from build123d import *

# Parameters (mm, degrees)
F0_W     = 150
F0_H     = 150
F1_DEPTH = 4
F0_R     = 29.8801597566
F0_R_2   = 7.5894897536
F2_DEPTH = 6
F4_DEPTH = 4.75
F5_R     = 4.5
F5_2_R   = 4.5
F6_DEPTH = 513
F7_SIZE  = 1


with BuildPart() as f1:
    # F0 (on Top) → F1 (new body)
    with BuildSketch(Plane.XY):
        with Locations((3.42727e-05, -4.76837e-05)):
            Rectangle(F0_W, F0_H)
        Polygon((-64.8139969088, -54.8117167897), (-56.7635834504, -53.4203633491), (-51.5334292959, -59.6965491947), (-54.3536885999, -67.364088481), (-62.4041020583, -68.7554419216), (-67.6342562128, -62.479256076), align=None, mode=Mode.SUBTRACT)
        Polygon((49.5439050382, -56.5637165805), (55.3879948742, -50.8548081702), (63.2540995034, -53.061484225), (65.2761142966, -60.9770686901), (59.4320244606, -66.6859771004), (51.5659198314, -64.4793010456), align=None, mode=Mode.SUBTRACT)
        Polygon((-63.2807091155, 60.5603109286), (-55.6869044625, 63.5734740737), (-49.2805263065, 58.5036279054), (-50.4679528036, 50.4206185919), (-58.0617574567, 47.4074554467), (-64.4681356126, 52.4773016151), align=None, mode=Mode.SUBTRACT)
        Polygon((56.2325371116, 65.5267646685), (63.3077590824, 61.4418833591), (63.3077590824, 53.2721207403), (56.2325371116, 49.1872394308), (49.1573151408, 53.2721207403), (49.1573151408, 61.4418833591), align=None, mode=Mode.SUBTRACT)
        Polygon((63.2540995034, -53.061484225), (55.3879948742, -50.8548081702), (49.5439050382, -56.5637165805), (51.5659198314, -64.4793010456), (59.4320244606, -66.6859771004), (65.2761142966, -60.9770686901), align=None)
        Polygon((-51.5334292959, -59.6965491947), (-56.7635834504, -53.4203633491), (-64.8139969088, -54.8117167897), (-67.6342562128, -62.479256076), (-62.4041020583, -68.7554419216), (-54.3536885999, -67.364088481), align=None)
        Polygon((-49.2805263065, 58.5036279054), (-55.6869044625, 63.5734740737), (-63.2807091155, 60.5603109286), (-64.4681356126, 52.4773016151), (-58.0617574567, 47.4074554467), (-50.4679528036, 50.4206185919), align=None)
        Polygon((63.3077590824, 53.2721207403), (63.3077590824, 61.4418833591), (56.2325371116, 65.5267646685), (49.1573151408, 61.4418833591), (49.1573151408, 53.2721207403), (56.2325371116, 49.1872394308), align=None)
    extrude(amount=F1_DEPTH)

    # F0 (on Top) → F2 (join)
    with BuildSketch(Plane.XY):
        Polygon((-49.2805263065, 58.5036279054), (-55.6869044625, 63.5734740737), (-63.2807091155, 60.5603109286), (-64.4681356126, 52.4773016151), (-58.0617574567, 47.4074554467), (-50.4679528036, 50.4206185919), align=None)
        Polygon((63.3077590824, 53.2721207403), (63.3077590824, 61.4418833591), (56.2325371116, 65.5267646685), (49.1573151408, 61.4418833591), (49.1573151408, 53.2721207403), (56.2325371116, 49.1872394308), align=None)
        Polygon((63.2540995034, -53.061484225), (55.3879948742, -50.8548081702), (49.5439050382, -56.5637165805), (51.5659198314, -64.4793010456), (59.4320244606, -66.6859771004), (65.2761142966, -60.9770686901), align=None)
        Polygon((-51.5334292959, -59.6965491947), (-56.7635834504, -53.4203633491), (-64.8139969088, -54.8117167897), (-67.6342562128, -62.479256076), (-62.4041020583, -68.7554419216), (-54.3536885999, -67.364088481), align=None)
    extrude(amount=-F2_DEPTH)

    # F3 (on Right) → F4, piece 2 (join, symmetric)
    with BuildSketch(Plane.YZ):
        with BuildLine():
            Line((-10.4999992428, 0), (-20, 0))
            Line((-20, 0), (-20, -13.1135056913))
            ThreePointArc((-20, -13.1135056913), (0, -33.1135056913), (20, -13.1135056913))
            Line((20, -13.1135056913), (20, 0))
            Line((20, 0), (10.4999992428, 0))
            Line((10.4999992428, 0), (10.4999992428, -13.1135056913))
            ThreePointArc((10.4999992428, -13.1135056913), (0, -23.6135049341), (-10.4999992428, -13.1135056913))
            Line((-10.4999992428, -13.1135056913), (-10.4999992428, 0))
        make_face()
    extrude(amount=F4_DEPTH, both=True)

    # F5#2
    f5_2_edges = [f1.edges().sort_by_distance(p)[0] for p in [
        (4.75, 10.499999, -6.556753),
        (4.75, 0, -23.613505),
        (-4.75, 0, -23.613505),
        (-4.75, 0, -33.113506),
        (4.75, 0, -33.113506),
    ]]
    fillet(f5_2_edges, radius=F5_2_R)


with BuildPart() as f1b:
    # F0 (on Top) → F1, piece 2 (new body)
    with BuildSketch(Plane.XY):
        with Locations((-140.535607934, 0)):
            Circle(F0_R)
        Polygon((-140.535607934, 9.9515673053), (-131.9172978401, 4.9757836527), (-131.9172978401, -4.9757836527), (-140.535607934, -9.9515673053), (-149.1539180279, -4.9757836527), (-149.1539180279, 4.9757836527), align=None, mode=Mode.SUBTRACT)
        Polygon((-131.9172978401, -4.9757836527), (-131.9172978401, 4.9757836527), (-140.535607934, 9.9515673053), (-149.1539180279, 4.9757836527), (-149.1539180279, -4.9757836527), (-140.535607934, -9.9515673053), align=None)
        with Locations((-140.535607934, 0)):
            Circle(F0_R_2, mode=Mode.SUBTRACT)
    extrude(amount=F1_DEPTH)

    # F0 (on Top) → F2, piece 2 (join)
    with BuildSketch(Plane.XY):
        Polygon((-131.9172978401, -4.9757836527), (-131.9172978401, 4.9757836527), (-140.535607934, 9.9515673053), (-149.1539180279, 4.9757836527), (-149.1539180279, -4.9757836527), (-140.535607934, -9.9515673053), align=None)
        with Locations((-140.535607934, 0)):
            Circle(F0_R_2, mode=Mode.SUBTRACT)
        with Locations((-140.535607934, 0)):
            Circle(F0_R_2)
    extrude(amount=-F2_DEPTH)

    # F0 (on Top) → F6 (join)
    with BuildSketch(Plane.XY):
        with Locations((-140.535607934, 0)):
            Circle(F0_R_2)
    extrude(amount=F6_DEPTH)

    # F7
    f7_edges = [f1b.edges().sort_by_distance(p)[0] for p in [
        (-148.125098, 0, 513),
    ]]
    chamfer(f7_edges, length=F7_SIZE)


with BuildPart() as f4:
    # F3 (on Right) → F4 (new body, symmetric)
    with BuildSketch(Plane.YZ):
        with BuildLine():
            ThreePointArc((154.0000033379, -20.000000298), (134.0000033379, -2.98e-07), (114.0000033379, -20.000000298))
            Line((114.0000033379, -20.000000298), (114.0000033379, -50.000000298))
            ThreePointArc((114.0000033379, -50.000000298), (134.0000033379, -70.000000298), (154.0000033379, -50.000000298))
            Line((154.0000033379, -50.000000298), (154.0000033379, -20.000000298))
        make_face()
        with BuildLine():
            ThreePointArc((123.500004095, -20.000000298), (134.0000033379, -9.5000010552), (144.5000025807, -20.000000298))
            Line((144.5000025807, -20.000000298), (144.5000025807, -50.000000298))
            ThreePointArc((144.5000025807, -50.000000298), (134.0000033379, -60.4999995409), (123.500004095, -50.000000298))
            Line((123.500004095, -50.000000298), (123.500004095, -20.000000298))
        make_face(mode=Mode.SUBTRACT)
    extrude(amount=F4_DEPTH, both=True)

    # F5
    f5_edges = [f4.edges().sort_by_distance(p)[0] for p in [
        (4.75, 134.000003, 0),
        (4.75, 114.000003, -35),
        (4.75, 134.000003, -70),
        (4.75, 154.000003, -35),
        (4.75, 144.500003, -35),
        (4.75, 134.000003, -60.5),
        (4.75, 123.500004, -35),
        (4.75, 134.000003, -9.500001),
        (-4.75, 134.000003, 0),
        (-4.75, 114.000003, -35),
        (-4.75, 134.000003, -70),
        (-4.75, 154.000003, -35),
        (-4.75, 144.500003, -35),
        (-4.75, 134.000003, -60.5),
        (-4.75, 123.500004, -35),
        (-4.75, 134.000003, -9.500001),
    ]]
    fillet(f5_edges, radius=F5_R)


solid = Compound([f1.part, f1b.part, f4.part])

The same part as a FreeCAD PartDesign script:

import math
import FreeCAD as App
import Part
import Sketcher

V = App.Vector
Q = App.Units.Quantity


def edges_at(feature, points):
    """Names of the edges that pass closest to the given points."""
    edges = feature.Shape.Edges
    near = lambda p: min(range(len(edges)), key=lambda i: edges[i].distToShape(Part.Vertex(*p))[0])
    return sorted({f"Edge{near(p) + 1}" for p in points})

doc = App.newDocument("Part")
body = doc.addObject("PartDesign::Body", "Body")

sketch1 = body.newObject("Sketcher::SketchObject", "Sketch")
sketch1.AttachmentSupport = (doc.getObject("XY_Plane"), [""])
sketch1.MapMode = "FlatFace"
sketch1.addGeometry([
    Part.LineSegment(V(-74.999966, 74.999952, 0), V(-74.999966, -75.000048, 0)),
    Part.LineSegment(V(-74.999966, -75.000048, 0), V(75.000034, -75.000048, 0)),
    Part.LineSegment(V(75.000034, -75.000048, 0), V(75.000034, 74.999952, 0)),
    Part.LineSegment(V(75.000034, 74.999952, 0), V(-74.999966, 74.999952, 0)),
], False)
sketch1.addConstraint([
    Sketcher.Constraint("Coincident", 0, 2, 1, 1),
    Sketcher.Constraint("Coincident", 1, 2, 2, 1),
    Sketcher.Constraint("Coincident", 2, 2, 3, 1),
    Sketcher.Constraint("Coincident", 3, 2, 0, 1),
    Sketcher.Constraint("Vertical", 0),
    Sketcher.Constraint("Horizontal", 1),
    Sketcher.Constraint("Vertical", 2),
    Sketcher.Constraint("Horizontal", 3),
    Sketcher.Constraint("Equal", 3, 0),
    Sketcher.Constraint("DistanceX", 1, 1, 1, 2, 150.0),
    Sketcher.Constraint("DistanceX", 0, 2, -1, 1, 74.999966),
    Sketcher.Constraint("DistanceY", 0, 2, -1, 1, 75.000048),
])
pad1 = body.newObject("PartDesign::Pad", "Pad")
pad1.Profile = sketch1
pad1.Length = 4

sketch2 = body.newObject("Sketcher::SketchObject", "Sketch001")
sketch2.AttachmentSupport = (doc.getObject("XY_Plane"), [""])
sketch2.MapMode = "FlatFace"
sketch2.addGeometry([
    Part.LineSegment(V(-49, 59, 0), V(-56, 64, 0)),
    Part.LineSegment(V(-56, 64, 0), V(-63, 61, 0)),
    Part.LineSegment(V(-63, 61, 0), V(-64, 52, 0)),
    Part.LineSegment(V(-64, 52, 0), V(-58, 47, 0)),
    Part.LineSegment(V(-58, 47, 0), V(-50, 50, 0)),
    Part.LineSegment(V(-50, 50, 0), V(-49, 59, 0)),
    Part.LineSegment(V(63, 53, 0), V(63, 61, 0)),
    Part.LineSegment(V(63, 61, 0), V(56, 66, 0)),
    Part.LineSegment(V(56, 66, 0), V(49, 61, 0)),
    Part.LineSegment(V(49, 61, 0), V(49, 53, 0)),
    Part.LineSegment(V(49, 53, 0), V(56, 49, 0)),
    Part.LineSegment(V(56, 49, 0), V(63, 53, 0)),
    Part.LineSegment(V(63, -53, 0), V(55, -51, 0)),
    Part.LineSegment(V(55, -51, 0), V(50, -57, 0)),
    Part.LineSegment(V(50, -57, 0), V(52, -64, 0)),
    Part.LineSegment(V(52, -64, 0), V(59, -67, 0)),
    Part.LineSegment(V(59, -67, 0), V(65, -61, 0)),
    Part.LineSegment(V(65, -61, 0), V(63, -53, 0)),
    Part.LineSegment(V(-52, -60, 0), V(-57, -53, 0)),
    Part.LineSegment(V(-57, -53, 0), V(-65, -55, 0)),
    Part.LineSegment(V(-65, -55, 0), V(-68, -62, 0)),
    Part.LineSegment(V(-68, -62, 0), V(-62, -69, 0)),
    Part.LineSegment(V(-62, -69, 0), V(-54, -67, 0)),
    Part.LineSegment(V(-54, -67, 0), V(-52, -60, 0)),
], False)
sketch2.addConstraint([
    Sketcher.Constraint("Coincident", 0, 2, 1, 1),
    Sketcher.Constraint("Coincident", 1, 2, 2, 1),
    Sketcher.Constraint("Coincident", 2, 2, 3, 1),
    Sketcher.Constraint("Coincident", 3, 2, 4, 1),
    Sketcher.Constraint("Coincident", 4, 2, 5, 1),
    Sketcher.Constraint("Coincident", 5, 2, 0, 1),
    Sketcher.Constraint("Coincident", 6, 2, 7, 1),
    Sketcher.Constraint("Coincident", 7, 2, 8, 1),
    Sketcher.Constraint("Coincident", 8, 2, 9, 1),
    Sketcher.Constraint("Coincident", 9, 2, 10, 1),
    Sketcher.Constraint("Coincident", 10, 2, 11, 1),
    Sketcher.Constraint("Coincident", 11, 2, 6, 1),
    Sketcher.Constraint("Coincident", 12, 2, 13, 1),
    Sketcher.Constraint("Coincident", 13, 2, 14, 1),
    Sketcher.Constraint("Coincident", 14, 2, 15, 1),
    Sketcher.Constraint("Coincident", 15, 2, 16, 1),
    Sketcher.Constraint("Coincident", 16, 2, 17, 1),
    Sketcher.Constraint("Coincident", 17, 2, 12, 1),
    Sketcher.Constraint("Coincident", 18, 2, 19, 1),
    Sketcher.Constraint("Coincident", 19, 2, 20, 1),
    Sketcher.Constraint("Coincident", 20, 2, 21, 1),
    Sketcher.Constraint("Coincident", 21, 2, 22, 1),
    Sketcher.Constraint("Coincident", 22, 2, 23, 1),
    Sketcher.Constraint("Coincident", 23, 2, 18, 1),
    Sketcher.Constraint("Vertical", 6),
    Sketcher.Constraint("Vertical", 9),
    Sketcher.Constraint("Parallel", 0, 3),
    Sketcher.Constraint("Parallel", 1, 4),
    Sketcher.Constraint("Parallel", 2, 5),
    Sketcher.Constraint("Parallel", 7, 10),
    Sketcher.Constraint("Parallel", 8, 11),
    Sketcher.Constraint("Parallel", 12, 15),
    Sketcher.Constraint("Parallel", 13, 16),
    Sketcher.Constraint("Parallel", 14, 17),
    Sketcher.Constraint("Parallel", 18, 21),
    Sketcher.Constraint("Parallel", 19, 22),
    Sketcher.Constraint("Parallel", 20, 23),
    Sketcher.Constraint("Horizontal", 6, 2, 8, 2),
    Sketcher.Constraint("Horizontal", 9, 2, 11, 2),
    Sketcher.Constraint("Vertical", 7, 2, 10, 2),
    Sketcher.Constraint("Equal", 0, 1),
    Sketcher.Constraint("Equal", 1, 2),
    Sketcher.Constraint("Equal", 2, 3),
    Sketcher.Constraint("Equal", 5, 7),
    Sketcher.Constraint("Equal", 11, 12),
    Sketcher.Constraint("Equal", 12, 13),
    Sketcher.Constraint("Equal", 13, 14),
    Sketcher.Constraint("Equal", 14, 15),
    Sketcher.Constraint("Equal", 17, 18),
    Sketcher.Constraint("Equal", 18, 19),
    Sketcher.Constraint("Equal", 19, 20),
    Sketcher.Constraint("Equal", 20, 21),
    Sketcher.Constraint("Angle", 7, Q("150 deg")),
    Sketcher.Constraint("DistanceY", 13, 2, 19, 2, 1.752),
    Sketcher.Constraint("DistanceY", -1, 1, 2, 2, 52.477302),
    Sketcher.Constraint("DistanceY", 14, 2, -1, 1, 64.479301),
    Sketcher.Constraint("DistanceX", -1, 1, 17, 2, 63.2541),
    Sketcher.Constraint("DistanceY", 13, 2, 8, 2, 118.0056),
    Sketcher.Constraint("DistanceX", 19, 2, 13, 2, 114.357902),
    Sketcher.Constraint("DistanceX", 20, 2, 3, 2, 9.572499),
    Sketcher.Constraint("DistanceY", 6, 1, 6, 2, 8.169763),
    Sketcher.Constraint("DistanceX", 1, 2, -1, 1, 63.280709),
    Sketcher.Constraint("DistanceY", -1, 1, 1, 2, 60.560311),
    Sketcher.Constraint("DistanceY", -1, 1, 4, 2, 50.420619),
    Sketcher.Constraint("DistanceX", -1, 1, 6, 2, 63.307759),
    Sketcher.Constraint("DistanceY", -1, 1, 9, 2, 53.272121),
    Sketcher.Constraint("DistanceY", -1, 1, 10, 2, 49.187239),
    Sketcher.Constraint("DistanceY", 12, 2, -1, 1, 50.854808),
    Sketcher.Constraint("DistanceX", -1, 1, 14, 2, 51.56592),
    Sketcher.Constraint("DistanceY", 21, 2, -1, 1, 68.755442),
    Sketcher.Constraint("DistanceX", 22, 2, -1, 1, 54.353689),
    Sketcher.Constraint("DistanceY", 22, 2, -1, 1, 67.364088),
])
pad2 = body.newObject("PartDesign::Pad", "Pad001")
pad2.Profile = sketch2
pad2.Length = 6
pad2.Reversed = True

sketch3 = body.newObject("Sketcher::SketchObject", "Sketch002")
sketch3.AttachmentSupport = (doc.getObject("YZ_Plane"), [""])
sketch3.MapMode = "FlatFace"
sketch3.addGeometry([
    Part.LineSegment(V(-10, 0, 0), V(-20, 0, 0)),
    Part.LineSegment(V(-20, 0, 0), V(-20, -13, 0)),
    Part.ArcOfCircle(Part.Circle(V(0, -13, 0), V(0, 0, 1), 20), math.radians(180), math.radians(360)),
    Part.LineSegment(V(20, -13, 0), V(20, 0, 0)),
    Part.LineSegment(V(20, 0, 0), V(10, 0, 0)),
    Part.LineSegment(V(10, 0, 0), V(10, -13, 0)),
    Part.ArcOfCircle(Part.Circle(V(0, -13, 0), V(0, 0, 1), 10), math.radians(180), math.radians(360)),
    Part.LineSegment(V(-10, -13, 0), V(-10, 0, 0)),
], False)
sketch3.addConstraint([
    Sketcher.Constraint("Coincident", 0, 2, 1, 1),
    Sketcher.Constraint("Tangent", 1, 2, 2, 1),
    Sketcher.Constraint("Tangent", 2, 2, 3, 1),
    Sketcher.Constraint("Coincident", 3, 2, 4, 1),
    Sketcher.Constraint("Coincident", 4, 2, 5, 1),
    Sketcher.Constraint("Tangent", 5, 2, 6, 2),
    Sketcher.Constraint("Tangent", 6, 1, 7, 1),
    Sketcher.Constraint("Coincident", 7, 2, 0, 1),
    Sketcher.Constraint("Horizontal", 0),
    Sketcher.Constraint("Vertical", 1),
    Sketcher.Constraint("Vertical", 3),
    Sketcher.Constraint("Horizontal", 4),
    Sketcher.Constraint("Vertical", 5),
    Sketcher.Constraint("Vertical", 7),
    Sketcher.Constraint("Coincident", 6, 3, 2, 3),
    Sketcher.Constraint("Symmetric", 0, 2, 3, 2, -1, 1),
    Sketcher.Constraint("PointOnObject", 0, 2, -1),
    Sketcher.Constraint("Radius", 2, 20.0),
    Sketcher.Constraint("Radius", 6, 10.499999),
    Sketcher.Constraint("DistanceY", 1, 2, 1, 1, 13.113506),
])
pad3 = body.newObject("PartDesign::Pad", "Pad002")
pad3.Profile = sketch3
pad3.Length = 9.5
pad3.Midplane = True
doc.recompute()

fillet = body.newObject("PartDesign::Fillet", "Fillet")
fillet.Base = (pad3, edges_at(pad3, [
    (4.75, 10.5, -6.557),
    (4.75, 0, -23.614),
    (-4.75, 0, -23.614),
    (-4.75, 0, -33.114),
    (4.75, 0, -33.114),
]))
fillet.Radius = 4.5
body2 = doc.addObject("PartDesign::Body", "Body001")

sketch4 = body2.newObject("Sketcher::SketchObject", "Sketch003")
sketch4.AttachmentSupport = (doc.getObject("XY_Plane001"), [""])
sketch4.MapMode = "FlatFace"
sketch4.addGeometry([
    Part.Circle(V(-141, 0, 0), V(0, 0, 1), 30),
    Part.Circle(V(-141, 0, 0), V(0, 0, 1), 8),
], False)
sketch4.addConstraint([
    Sketcher.Constraint("Coincident", 1, 3, 0, 3),
    Sketcher.Constraint("PointOnObject", 0, 3, -1),
    Sketcher.Constraint("Diameter", 0, 59.76032),
    Sketcher.Constraint("Diameter", 1, 15.17898),
    Sketcher.Constraint("DistanceX", 0, 3, -1, 1, 140.535608),
])
pad4 = body2.newObject("PartDesign::Pad", "Pad003")
pad4.Profile = sketch4
pad4.Length = 4

sketch5 = body2.newObject("Sketcher::SketchObject", "Sketch004")
sketch5.AttachmentSupport = (doc.getObject("XY_Plane001"), [""])
sketch5.MapMode = "FlatFace"
sketch5.addGeometry([
    Part.LineSegment(V(-132, -5, 0), V(-132, 5, 0)),
    Part.LineSegment(V(-132, 5, 0), V(-141, 10, 0)),
    Part.LineSegment(V(-141, 10, 0), V(-149, 5, 0)),
    Part.LineSegment(V(-149, 5, 0), V(-149, -5, 0)),
    Part.LineSegment(V(-149, -5, 0), V(-141, -10, 0)),
    Part.LineSegment(V(-141, -10, 0), V(-132, -5, 0)),
], False)
sketch5.addConstraint([
    Sketcher.Constraint("Coincident", 0, 2, 1, 1),
    Sketcher.Constraint("Coincident", 1, 2, 2, 1),
    Sketcher.Constraint("Coincident", 2, 2, 3, 1),
    Sketcher.Constraint("Coincident", 3, 2, 4, 1),
    Sketcher.Constraint("Coincident", 4, 2, 5, 1),
    Sketcher.Constraint("Coincident", 5, 2, 0, 1),
    Sketcher.Constraint("Vertical", 0),
    Sketcher.Constraint("Vertical", 3),
    Sketcher.Constraint("Symmetric", 1, 2, 4, 2, -1),
    Sketcher.Constraint("Parallel", 1, 4),
    Sketcher.Constraint("Parallel", 2, 5),
    Sketcher.Constraint("Horizontal", 0, 2, 2, 2),
    Sketcher.Constraint("Horizontal", 3, 2, 5, 2),
    Sketcher.Constraint("Angle", 1, Q("150 deg")),
    Sketcher.Constraint("DistanceY", 0, 1, 0, 2, 9.951567),
    Sketcher.Constraint("DistanceX", 2, 2, -1, 1, 149.153918),
    Sketcher.Constraint("DistanceX", 1, 2, 0, 2, 8.61831),
])
pad5 = body2.newObject("PartDesign::Pad", "Pad004")
pad5.Profile = sketch5
pad5.Length = 6
pad5.Reversed = True

sketch6 = body2.newObject("Sketcher::SketchObject", "Sketch005")
sketch6.AttachmentSupport = (doc.getObject("XY_Plane001"), [""])
sketch6.MapMode = "FlatFace"
sketch6.addGeometry(Part.Circle(V(-141, 0, 0), V(0, 0, 1), 8), False)
sketch6.addConstraint([
    Sketcher.Constraint("PointOnObject", 0, 3, -1),
    Sketcher.Constraint("Diameter", 0, 15.17898),
    Sketcher.Constraint("DistanceX", 0, 3, -1, 1, 140.535608),
])
pad6 = body2.newObject("PartDesign::Pad", "Pad005")
pad6.Profile = sketch6
pad6.Length = 513
doc.recompute()

chamfer = body2.newObject("PartDesign::Chamfer", "Chamfer")
chamfer.Base = (pad6, edges_at(pad6, [(-148.125, 0, 513)]))
chamfer.Size = 1
body3 = doc.addObject("PartDesign::Body", "Body002")

sketch7 = body3.newObject("Sketcher::SketchObject", "Sketch006")
sketch7.AttachmentSupport = (doc.getObject("YZ_Plane002"), [""])
sketch7.MapMode = "FlatFace"
sketch7.addGeometry([
    Part.ArcOfCircle(Part.Circle(V(134, -20, 0), V(0, 0, 1), 20), math.radians(0), math.radians(180)),
    Part.LineSegment(V(114, -20, 0), V(114, -50, 0)),
    Part.ArcOfCircle(Part.Circle(V(134, -50, 0), V(0, 0, 1), 20), math.radians(180), math.radians(360)),
    Part.LineSegment(V(154, -50, 0), V(154, -20, 0)),
    Part.LineSegment(V(124, -50, 0), V(124, -20, 0)),
    Part.ArcOfCircle(Part.Circle(V(134, -20, 0), V(0, 0, 1), 10), math.radians(0), math.radians(180)),
    Part.LineSegment(V(145, -20, 0), V(145, -50, 0)),
    Part.ArcOfCircle(Part.Circle(V(134, -50, 0), V(0, 0, 1), 10), math.radians(180), math.radians(360)),
], False)
sketch7.addConstraint([
    Sketcher.Constraint("Tangent", 0, 2, 1, 1),
    Sketcher.Constraint("Tangent", 1, 2, 2, 1),
    Sketcher.Constraint("Tangent", 2, 2, 3, 1),
    Sketcher.Constraint("Tangent", 3, 2, 0, 1),
    Sketcher.Constraint("Tangent", 4, 2, 5, 2),
    Sketcher.Constraint("Tangent", 5, 1, 6, 1),
    Sketcher.Constraint("Tangent", 6, 2, 7, 2),
    Sketcher.Constraint("Tangent", 7, 1, 4, 1),
    Sketcher.Constraint("Vertical", 1),
    Sketcher.Constraint("Vertical", 3),
    Sketcher.Constraint("Vertical", 4),
    Sketcher.Constraint("Vertical", 6),
    Sketcher.Constraint("Coincident", 5, 3, 0, 3),
    Sketcher.Constraint("Horizontal", 7, 3, 1, 2),
    Sketcher.Constraint("Radius", 0, 20.0),
    Sketcher.Constraint("Radius", 5, 10.499999),
    Sketcher.Constraint("DistanceY", 1, 2, 1, 1, 30.0),
    Sketcher.Constraint("DistanceY", 0, 3, -1, 1, 20.0),
    Sketcher.Constraint("DistanceX", -1, 1, 0, 3, 134.000003),
])
pad7 = body3.newObject("PartDesign::Pad", "Pad006")
pad7.Profile = sketch7
pad7.Length = 9.5
pad7.Midplane = True
doc.recompute()

fillet2 = body3.newObject("PartDesign::Fillet", "Fillet001")
fillet2.Base = (pad7, edges_at(pad7, [
    (4.75, 134, 0),
    (4.75, 114, -35),
    (4.75, 134, -70),
    (4.75, 154, -35),
    (4.75, 144.5, -35),
    (4.75, 134, -60.5),
    (4.75, 123.5, -35),
    (4.75, 134, -9.5),
    (-4.75, 134, 0),
    (-4.75, 114, -35),
    (-4.75, 134, -70),
    (-4.75, 154, -35),
    (-4.75, 144.5, -35),
    (-4.75, 134, -60.5),
    (-4.75, 123.5, -35),
    (-4.75, 134, -9.5),
]))
fillet2.Radius = 4.5

doc.recompute()
